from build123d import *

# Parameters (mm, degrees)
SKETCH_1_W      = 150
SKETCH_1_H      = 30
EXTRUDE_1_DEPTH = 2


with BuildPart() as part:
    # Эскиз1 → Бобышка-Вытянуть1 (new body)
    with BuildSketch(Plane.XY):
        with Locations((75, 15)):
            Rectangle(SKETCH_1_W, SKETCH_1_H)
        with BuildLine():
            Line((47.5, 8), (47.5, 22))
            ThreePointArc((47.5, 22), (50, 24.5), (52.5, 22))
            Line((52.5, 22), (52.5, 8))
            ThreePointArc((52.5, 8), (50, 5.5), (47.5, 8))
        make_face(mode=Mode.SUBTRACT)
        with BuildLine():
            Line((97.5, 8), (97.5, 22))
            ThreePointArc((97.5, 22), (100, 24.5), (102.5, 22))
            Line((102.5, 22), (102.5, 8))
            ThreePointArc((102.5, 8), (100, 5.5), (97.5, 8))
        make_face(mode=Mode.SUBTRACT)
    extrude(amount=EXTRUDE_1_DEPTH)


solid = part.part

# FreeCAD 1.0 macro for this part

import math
import FreeCAD as App
import Part
import Sketcher
from FreeCAD import Vector
Q = App.Units.Quantity

doc = App.newDocument("Part")
body = doc.addObject("PartDesign::Body", "Body")

# Sketch on XY plane
sketch1 = body.newObject("Sketcher::SketchObject", "Sketch")
sketch1.AttachmentSupport = (doc.getObject("XY_Plane"), [""])
sketch1.MapMode = "FlatFace"
sketch1.addGeometry([
    Part.LineSegment(Vector(0, 30, 0), Vector(0, 0, 0)),  # 0
    Part.LineSegment(Vector(0, 0, 0), Vector(150, 0, 0)),  # 1
    Part.LineSegment(Vector(150, 0, 0), Vector(150, 30, 0)),  # 2
    Part.LineSegment(Vector(150, 30, 0), Vector(0, 30, 0)),  # 3
    Part.ArcOfCircle(Part.Circle(Vector(50, 8, 0), Vector(0, 0, 1), 2.5), math.radians(180), math.radians(360)),  # 4
    Part.LineSegment(Vector(47.5, 8, 0), Vector(47.5, 22, 0)),  # 5
    Part.ArcOfCircle(Part.Circle(Vector(50, 22, 0), Vector(0, 0, 1), 2.5), math.radians(0), math.radians(180)),  # 6
    Part.LineSegment(Vector(52.5, 22, 0), Vector(52.5, 8, 0)),  # 7
    Part.ArcOfCircle(Part.Circle(Vector(100, 8, 0), Vector(0, 0, 1), 2.5), math.radians(180), math.radians(360)),  # 8
    Part.LineSegment(Vector(97.5, 8, 0), Vector(97.5, 22, 0)),  # 9
    Part.ArcOfCircle(Part.Circle(Vector(100, 22, 0), Vector(0, 0, 1), 2.5), math.radians(0), math.radians(180)),  # 10
    Part.LineSegment(Vector(102.5, 22, 0), Vector(102.5, 8, 0)),  # 11
], False)
sketch1.addConstraint([
    Sketcher.Constraint("Coincident", 0, 2, 1, 1),
    Sketcher.Constraint("Coincident", 1, 2, 2, 1),
    Sketcher.Constraint("Coincident", 2, 2, 3, 1),
    Sketcher.Constraint("Coincident", 3, 2, 0, 1),
    Sketcher.Constraint("Tangent", 4, 1, 5, 1),
    Sketcher.Constraint("Tangent", 5, 2, 6, 2),
    Sketcher.Constraint("Tangent", 6, 1, 7, 1),
    Sketcher.Constraint("Tangent", 7, 2, 4, 2),
    Sketcher.Constraint("Tangent", 8, 1, 9, 1),
    Sketcher.Constraint("Tangent", 9, 2, 10, 2),
    Sketcher.Constraint("Tangent", 10, 1, 11, 1),
    Sketcher.Constraint("Tangent", 11, 2, 8, 2),
    Sketcher.Constraint("Vertical", 0),
    Sketcher.Constraint("Horizontal", 1),
    Sketcher.Constraint("Vertical", 2),
    Sketcher.Constraint("Horizontal", 3),
    Sketcher.Constraint("Vertical", 5),
    Sketcher.Constraint("Vertical", 7),
    Sketcher.Constraint("Vertical", 9),
    Sketcher.Constraint("Vertical", 11),
    Sketcher.Constraint("Coincident", 0, 2, -1, 1),
    Sketcher.Constraint("Equal", 6, 8),
    Sketcher.Constraint("Horizontal", 4, 3, 8, 3),
    Sketcher.Constraint("Horizontal", 6, 3, 10, 3),
    Sketcher.Constraint("Radius", 4, Q("2.5 mm")),
    Sketcher.Constraint("DistanceX", 1, 1, 1, 2, Q("150 mm")),
    Sketcher.Constraint("DistanceY", 0, 2, 0, 1, Q("30 mm")),
    Sketcher.Constraint("DistanceY", 5, 1, 5, 2, Q("14 mm")),
    Sketcher.Constraint("DistanceX", -1, 1, 4, 3, Q("50 mm")),
    Sketcher.Constraint("DistanceY", -1, 1, 4, 3, Q("8 mm")),
    Sketcher.Constraint("DistanceX", -1, 1, 8, 3, Q("100 mm")),
])
pad1 = body.newObject("PartDesign::Pad", "Pad")
pad1.Profile = sketch1
pad1.Length = 2

doc.recompute()
